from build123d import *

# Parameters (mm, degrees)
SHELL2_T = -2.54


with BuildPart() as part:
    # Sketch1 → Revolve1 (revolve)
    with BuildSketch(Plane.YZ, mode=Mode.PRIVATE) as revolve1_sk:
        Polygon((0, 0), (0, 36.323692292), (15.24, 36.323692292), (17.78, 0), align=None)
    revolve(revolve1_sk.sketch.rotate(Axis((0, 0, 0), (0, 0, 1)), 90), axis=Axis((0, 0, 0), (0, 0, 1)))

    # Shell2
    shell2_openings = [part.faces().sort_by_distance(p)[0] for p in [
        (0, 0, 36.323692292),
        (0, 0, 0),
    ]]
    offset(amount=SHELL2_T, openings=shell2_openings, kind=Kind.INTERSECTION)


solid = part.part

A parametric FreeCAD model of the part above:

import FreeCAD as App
import Part
import Sketcher
Q = App.Units.Quantity


def faces_at(feature, points):
    """Names of the faces that lie closest to the given points."""
    faces = feature.Shape.Faces
    near = lambda p: min(range(len(faces)), key=lambda i: faces[i].distToShape(Part.Vertex(*p))[0])
    return sorted({f"Face{near(p) + 1}" for p in points})

doc = App.newDocument("Part")
body = doc.addObject("PartDesign::Body", "Body")

sketch1 = body.newObject("Sketcher::SketchObject", "Sketch")
sketch1.AttachmentSupport = (doc.getObject("YZ_Plane"), [""])
sketch1.MapMode = "FlatFace"
sketch1.addGeometry([
    Part.LineSegment(App.Vector(0, 36, 0), App.Vector(0, 0, 0)),
    Part.LineSegment(App.Vector(0, 0, 0), App.Vector(18, 0, 0)),
    Part.LineSegment(App.Vector(18, 0, 0), App.Vector(15, 36, 0)),
    Part.LineSegment(App.Vector(15, 36, 0), App.Vector(0, 36, 0)),
], False)
sketch1.addConstraint([
    Sketcher.Constraint("Coincident", 0, 2, 1, 1),
    Sketcher.Constraint("Coincident", 1, 2, 2, 1),
    Sketcher.Constraint("Coincident", 2, 2, 3, 1),
    Sketcher.Constraint("Coincident", 3, 2, 0, 1),
    Sketcher.Constraint("Vertical", 0),
    Sketcher.Constraint("Horizontal", 1),
    Sketcher.Constraint("Horizontal", 3),
    Sketcher.Constraint("Coincident", 0, 2, -1, 1),
    Sketcher.Constraint("DistanceX", 1, 1, 1, 2, Q("0.7 in")),
    Sketcher.Constraint("DistanceX", 3, 2, 3, 1, Q("0.6 in")),
    Sketcher.Constraint("Angle", 2, Q("94 deg")),
])
revolution = body.newObject("PartDesign::Revolution", "Revolution")
revolution.Profile = sketch1
revolution.ReferenceAxis = (sketch1, ["V_Axis"])
revolution.Angle = 360
doc.recompute()

thickness = body.newObject("PartDesign::Thickness", "Thickness")
thickness.Base = (revolution, faces_at(revolution, [(0, 0, 36.324), (0, 0, 0)]))
thickness.Value = Q("0.1 in")
thickness.Reversed = True
thickness.Join = "Intersection"

doc.recompute()
